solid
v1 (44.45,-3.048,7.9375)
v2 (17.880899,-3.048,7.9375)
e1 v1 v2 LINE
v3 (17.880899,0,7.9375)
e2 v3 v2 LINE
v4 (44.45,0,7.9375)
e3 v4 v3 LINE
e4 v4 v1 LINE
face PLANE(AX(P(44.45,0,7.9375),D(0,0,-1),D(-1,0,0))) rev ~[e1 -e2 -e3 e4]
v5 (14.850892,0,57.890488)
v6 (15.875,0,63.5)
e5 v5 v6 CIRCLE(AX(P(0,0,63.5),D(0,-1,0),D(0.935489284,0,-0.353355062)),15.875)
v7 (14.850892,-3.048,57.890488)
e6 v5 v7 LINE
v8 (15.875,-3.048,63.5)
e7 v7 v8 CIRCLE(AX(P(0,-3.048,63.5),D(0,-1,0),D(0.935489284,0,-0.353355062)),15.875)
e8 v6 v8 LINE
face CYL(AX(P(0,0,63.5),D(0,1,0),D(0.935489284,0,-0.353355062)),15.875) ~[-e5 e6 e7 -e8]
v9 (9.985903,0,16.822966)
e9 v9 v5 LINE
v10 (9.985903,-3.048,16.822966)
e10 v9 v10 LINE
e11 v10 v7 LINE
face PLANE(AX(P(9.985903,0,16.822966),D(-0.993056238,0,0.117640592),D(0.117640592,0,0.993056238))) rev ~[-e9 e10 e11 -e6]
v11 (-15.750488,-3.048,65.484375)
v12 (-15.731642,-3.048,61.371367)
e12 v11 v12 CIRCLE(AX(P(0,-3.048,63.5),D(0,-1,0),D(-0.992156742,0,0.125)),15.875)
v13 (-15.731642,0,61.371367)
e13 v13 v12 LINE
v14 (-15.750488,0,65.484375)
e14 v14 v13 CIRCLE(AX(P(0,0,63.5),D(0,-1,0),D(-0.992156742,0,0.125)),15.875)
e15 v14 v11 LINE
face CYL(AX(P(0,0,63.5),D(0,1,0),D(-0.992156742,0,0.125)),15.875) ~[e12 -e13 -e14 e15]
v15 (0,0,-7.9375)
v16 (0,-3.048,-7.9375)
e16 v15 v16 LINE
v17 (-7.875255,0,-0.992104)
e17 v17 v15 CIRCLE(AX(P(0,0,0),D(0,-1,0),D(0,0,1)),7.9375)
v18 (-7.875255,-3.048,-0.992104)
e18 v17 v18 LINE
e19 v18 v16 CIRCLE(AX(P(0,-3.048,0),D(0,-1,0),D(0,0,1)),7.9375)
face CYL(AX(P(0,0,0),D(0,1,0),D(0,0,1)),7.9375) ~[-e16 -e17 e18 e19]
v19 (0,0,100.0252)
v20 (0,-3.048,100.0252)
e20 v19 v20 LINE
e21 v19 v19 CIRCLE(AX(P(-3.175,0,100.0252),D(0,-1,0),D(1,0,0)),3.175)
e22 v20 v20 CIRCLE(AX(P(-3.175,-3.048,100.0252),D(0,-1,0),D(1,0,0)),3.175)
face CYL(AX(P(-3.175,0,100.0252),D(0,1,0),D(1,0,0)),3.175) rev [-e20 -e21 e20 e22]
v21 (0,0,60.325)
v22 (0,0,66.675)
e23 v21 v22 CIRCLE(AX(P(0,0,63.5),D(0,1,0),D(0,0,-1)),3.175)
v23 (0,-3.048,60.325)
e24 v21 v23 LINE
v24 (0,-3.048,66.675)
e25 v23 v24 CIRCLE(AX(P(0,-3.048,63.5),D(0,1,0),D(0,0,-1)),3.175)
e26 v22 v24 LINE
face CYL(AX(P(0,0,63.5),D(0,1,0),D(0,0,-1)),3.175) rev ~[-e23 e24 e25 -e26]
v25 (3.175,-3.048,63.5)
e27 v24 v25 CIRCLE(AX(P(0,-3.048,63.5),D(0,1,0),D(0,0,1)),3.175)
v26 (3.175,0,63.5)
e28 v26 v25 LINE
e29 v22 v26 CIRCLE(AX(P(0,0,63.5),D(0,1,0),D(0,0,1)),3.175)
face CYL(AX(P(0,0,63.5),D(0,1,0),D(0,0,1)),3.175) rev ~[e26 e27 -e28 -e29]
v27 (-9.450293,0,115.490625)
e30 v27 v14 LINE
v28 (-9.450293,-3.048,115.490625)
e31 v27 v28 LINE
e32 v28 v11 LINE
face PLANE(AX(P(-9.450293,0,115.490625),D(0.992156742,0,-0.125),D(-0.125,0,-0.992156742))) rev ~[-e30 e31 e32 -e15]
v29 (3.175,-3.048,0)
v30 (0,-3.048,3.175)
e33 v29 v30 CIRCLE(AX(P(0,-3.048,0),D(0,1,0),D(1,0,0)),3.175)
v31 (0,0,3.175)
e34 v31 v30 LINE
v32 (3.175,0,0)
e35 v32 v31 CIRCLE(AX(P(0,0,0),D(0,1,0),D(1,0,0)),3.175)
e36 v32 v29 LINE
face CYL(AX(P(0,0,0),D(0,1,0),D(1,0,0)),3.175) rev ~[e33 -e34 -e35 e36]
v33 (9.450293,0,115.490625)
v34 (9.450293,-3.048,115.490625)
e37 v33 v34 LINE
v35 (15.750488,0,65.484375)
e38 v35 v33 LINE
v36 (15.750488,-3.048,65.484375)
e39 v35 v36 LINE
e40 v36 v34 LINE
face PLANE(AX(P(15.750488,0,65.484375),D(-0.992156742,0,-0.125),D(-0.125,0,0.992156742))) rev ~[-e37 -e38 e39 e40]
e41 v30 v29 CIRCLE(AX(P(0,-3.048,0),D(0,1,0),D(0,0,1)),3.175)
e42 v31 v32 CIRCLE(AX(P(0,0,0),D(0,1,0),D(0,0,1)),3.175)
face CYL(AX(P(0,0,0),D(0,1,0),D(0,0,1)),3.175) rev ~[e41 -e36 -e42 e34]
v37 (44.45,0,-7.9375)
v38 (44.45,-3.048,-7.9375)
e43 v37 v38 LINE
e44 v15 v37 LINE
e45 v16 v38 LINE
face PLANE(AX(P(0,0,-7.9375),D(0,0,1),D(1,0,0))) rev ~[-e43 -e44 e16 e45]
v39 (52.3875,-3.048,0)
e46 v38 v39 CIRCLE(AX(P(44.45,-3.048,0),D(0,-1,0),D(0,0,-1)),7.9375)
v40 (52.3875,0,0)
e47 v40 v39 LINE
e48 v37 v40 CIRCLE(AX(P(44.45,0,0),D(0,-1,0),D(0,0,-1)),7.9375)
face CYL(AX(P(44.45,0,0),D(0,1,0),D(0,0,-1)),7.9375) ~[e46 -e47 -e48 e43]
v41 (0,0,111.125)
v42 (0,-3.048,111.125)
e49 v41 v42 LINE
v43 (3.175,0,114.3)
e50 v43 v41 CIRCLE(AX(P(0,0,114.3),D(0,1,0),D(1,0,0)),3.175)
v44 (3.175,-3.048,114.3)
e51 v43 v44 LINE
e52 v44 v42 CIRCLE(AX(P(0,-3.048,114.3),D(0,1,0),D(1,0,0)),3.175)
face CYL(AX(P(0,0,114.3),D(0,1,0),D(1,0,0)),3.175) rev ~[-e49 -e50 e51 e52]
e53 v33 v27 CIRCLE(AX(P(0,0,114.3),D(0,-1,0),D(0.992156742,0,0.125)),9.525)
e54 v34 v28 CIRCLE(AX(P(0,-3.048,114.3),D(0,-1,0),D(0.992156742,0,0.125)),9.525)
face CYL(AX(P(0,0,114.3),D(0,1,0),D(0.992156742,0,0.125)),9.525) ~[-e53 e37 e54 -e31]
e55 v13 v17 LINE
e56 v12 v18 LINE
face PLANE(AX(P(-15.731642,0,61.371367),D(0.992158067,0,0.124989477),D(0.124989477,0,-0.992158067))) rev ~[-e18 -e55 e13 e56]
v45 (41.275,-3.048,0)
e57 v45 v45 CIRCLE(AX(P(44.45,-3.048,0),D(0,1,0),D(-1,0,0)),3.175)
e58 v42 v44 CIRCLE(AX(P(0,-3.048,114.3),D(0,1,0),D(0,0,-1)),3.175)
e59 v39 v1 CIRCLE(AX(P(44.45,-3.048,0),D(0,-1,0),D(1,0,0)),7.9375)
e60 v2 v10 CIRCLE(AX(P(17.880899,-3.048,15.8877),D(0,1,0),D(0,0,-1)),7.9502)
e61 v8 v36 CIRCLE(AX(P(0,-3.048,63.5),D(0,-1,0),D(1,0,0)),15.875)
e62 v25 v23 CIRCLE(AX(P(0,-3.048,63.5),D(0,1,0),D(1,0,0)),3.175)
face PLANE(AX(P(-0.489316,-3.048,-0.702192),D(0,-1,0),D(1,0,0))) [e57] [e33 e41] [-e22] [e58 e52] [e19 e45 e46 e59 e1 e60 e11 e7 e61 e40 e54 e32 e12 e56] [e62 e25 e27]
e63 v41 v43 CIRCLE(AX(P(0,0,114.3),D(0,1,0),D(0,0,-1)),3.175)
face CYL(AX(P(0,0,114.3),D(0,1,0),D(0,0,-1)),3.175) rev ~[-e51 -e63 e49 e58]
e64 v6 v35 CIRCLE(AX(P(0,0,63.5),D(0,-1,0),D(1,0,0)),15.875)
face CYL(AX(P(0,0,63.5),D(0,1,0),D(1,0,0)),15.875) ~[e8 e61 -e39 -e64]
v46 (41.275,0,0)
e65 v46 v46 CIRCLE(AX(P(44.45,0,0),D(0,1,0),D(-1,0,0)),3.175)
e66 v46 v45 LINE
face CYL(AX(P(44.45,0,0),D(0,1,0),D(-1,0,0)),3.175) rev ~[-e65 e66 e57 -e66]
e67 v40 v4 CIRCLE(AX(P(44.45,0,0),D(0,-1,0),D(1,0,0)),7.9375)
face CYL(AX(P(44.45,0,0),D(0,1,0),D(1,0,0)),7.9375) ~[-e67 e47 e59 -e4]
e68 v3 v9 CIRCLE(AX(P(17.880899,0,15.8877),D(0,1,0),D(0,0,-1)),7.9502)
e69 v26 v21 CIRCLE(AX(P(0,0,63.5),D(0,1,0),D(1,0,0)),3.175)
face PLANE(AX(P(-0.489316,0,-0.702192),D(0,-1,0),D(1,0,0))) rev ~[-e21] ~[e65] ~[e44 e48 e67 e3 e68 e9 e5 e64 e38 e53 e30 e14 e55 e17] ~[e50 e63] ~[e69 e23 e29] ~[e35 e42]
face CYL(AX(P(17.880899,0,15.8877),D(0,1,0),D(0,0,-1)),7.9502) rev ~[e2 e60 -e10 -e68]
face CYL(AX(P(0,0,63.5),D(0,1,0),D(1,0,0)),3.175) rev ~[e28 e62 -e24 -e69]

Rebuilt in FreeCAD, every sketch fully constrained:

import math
import FreeCAD as App
import Part
import Sketcher

V = App.Vector
Q = App.Units.Quantity

doc = App.newDocument("Part")
body = doc.addObject("PartDesign::Body", "Body")

sketch1 = body.newObject("Sketcher::SketchObject", "Sketch")
sketch1.AttachmentSupport = (doc.getObject("XZ_Plane"), [""])
sketch1.MapMode = "FlatFace"
sketch1.addGeometry([
    Part.ArcOfCircle(Part.Circle(V(0, 63.5, 0), V(0, 0, 1), 15.875), math.radians(0), math.radians(7.180756)),
    Part.LineSegment(V(15.750488, 65.484375, 0), V(9.450293, 115.490625, 0)),
    Part.ArcOfCircle(Part.Circle(V(0, 114.3, 0), V(0, 0, 1), 9.525), math.radians(7.180756), math.radians(172.819244)),
    Part.LineSegment(V(-9.450293, 115.490625, 0), V(-15.750488, 65.484375, 0)),
    Part.ArcOfCircle(Part.Circle(V(0, 63.5, 0), V(0, 0, 1), 15.875), math.radians(172.819244), math.radians(187.705837)),
    Part.LineSegment(V(-15.731642, 61.371367, 0), V(-7.875255, -0.992104, 0)),
    Part.ArcOfCircle(Part.Circle(V(0, 0, 0), V(0, 0, 1), 7.9375), math.radians(-172.819852), math.radians(-90)),
    Part.LineSegment(V(0, -7.9375, 0), V(44.45, -7.9375, 0)),
    Part.ArcOfCircle(Part.Circle(V(44.45, 0, 0), V(0, 0, 1), 7.9375), math.radians(-90), math.radians(0)),
    Part.ArcOfCircle(Part.Circle(V(44.45, 0, 0), V(0, 0, 1), 7.9375), math.radians(0), math.radians(90)),
    Part.LineSegment(V(44.45, 7.9375, 0), V(17.880899, 7.9375, 0)),
    Part.ArcOfCircle(Part.Circle(V(17.880899, 15.8877, 0), V(0, 0, 1), 7.9502), math.radians(173.244046), math.radians(270)),
    Part.LineSegment(V(9.985903, 16.822966, 0), V(14.850892, 57.890488, 0)),
    Part.ArcOfCircle(Part.Circle(V(0, 63.5, 0), V(0, 0, 1), 15.875), math.radians(-20.692664), math.radians(0)),
    Part.ArcOfCircle(Part.Circle(V(0, 0, 0), V(0, 0, 1), 3.175), math.radians(90), math.radians(360)),
    Part.ArcOfCircle(Part.Circle(V(0, 0, 0), V(0, 0, 1), 3.175), math.radians(0), math.radians(90)),
    Part.Circle(V(44.45, 0, 0), V(0, 0, 1), 3.175),
    Part.ArcOfCircle(Part.Circle(V(0, 63.5, 0), V(0, 0, 1), 3.175), math.radians(90), math.radians(270)),
    Part.ArcOfCircle(Part.Circle(V(0, 63.5, 0), V(0, 0, 1), 3.175), math.radians(0), math.radians(90)),
    Part.ArcOfCircle(Part.Circle(V(0, 63.5, 0), V(0, 0, 1), 3.175), math.radians(-90), math.radians(0)),
    Part.Circle(V(-3.175, 100.0252, 0), V(0, 0, 1), 3.175),
    Part.ArcOfCircle(Part.Circle(V(0, 114.3, 0), V(0, 0, 1), 3.175), math.radians(0), math.radians(270)),
    Part.ArcOfCircle(Part.Circle(V(0, 114.3, 0), V(0, 0, 1), 3.175), math.radians(-90), math.radians(0)),
], False)
sketch1.addConstraint([
    Sketcher.Constraint("Tangent", 0, 2, 1, 1),
    Sketcher.Constraint("Tangent", 1, 2, 2, 1),
    Sketcher.Constraint("Tangent", 2, 2, 3, 1),
    Sketcher.Constraint("Tangent", 3, 2, 4, 1),
    Sketcher.Constraint("Coincident", 4, 2, 5, 1),
    Sketcher.Constraint("Tangent", 5, 2, 6, 1),
    Sketcher.Constraint("Tangent", 6, 2, 7, 1),
    Sketcher.Constraint("Tangent", 7, 2, 8, 1),
    Sketcher.Constraint("Tangent", 8, 2, 9, 1),
    Sketcher.Constraint("Tangent", 9, 2, 10, 1),
    Sketcher.Constraint("Tangent", 10, 2, 11, 2),
    Sketcher.Constraint("Tangent", 11, 1, 12, 1),
    Sketcher.Constraint("Coincident", 12, 2, 13, 1),
    Sketcher.Constraint("Tangent", 13, 2, 0, 1),
    Sketcher.Constraint("Tangent", 14, 1, 15, 2),
    Sketcher.Constraint("Coincident", 15, 1, 14, 2),
    Sketcher.Constraint("Tangent", 17, 1, 18, 2),
    Sketcher.Constraint("Tangent", 18, 1, 19, 2),
    Sketcher.Constraint("Tangent", 19, 1, 17, 2),
    Sketcher.Constraint("Tangent", 21, 1, 22, 2),
    Sketcher.Constraint("Coincident", 22, 1, 21, 2),
    Sketcher.Constraint("Horizontal", 7),
    Sketcher.Constraint("Horizontal", 10),
    Sketcher.Constraint("Coincident", 6, 3, -1, 1),
    Sketcher.Constraint("Coincident", 14, 3, -1, 1),
    Sketcher.Constraint("Coincident", 4, 3, 0, 3),
    Sketcher.Constraint("Coincident", 16, 3, 8, 3),
    Sketcher.Constraint("Coincident", 17, 3, 0, 3),
    Sketcher.Constraint("Coincident", 21, 3, 2, 3),
    Sketcher.Constraint("Equal", 0, 4),
    Sketcher.Constraint("Equal", 6, 8),
    Sketcher.Constraint("Equal", 8, 9),
    Sketcher.Constraint("Equal", 4, 13),
    Sketcher.Constraint("Equal", 15, 16),
    Sketcher.Constraint("Equal", 16, 17),
    Sketcher.Constraint("Equal", 19, 20),
    Sketcher.Constraint("Equal", 20, 21),
    Sketcher.Constraint("Symmetric", 1, 2, 2, 2, -2),
    Sketcher.Constraint("PointOnObject", 8, 2, -1),
    Sketcher.Constraint("PointOnObject", 14, 1, -2),
    Sketcher.Constraint("PointOnObject", 15, 1, -1),
    Sketcher.Constraint("PointOnObject", 17, 1, -2),
    Sketcher.Constraint("PointOnObject", 19, 1, -2),
    Sketcher.Constraint("PointOnObject", 22, 1, -2),
    Sketcher.Constraint("Horizontal", 19, 3, 13, 2),
    Sketcher.Constraint("Horizontal", 13, 2, 18, 1),
    Sketcher.Constraint("Horizontal", 22, 3, 21, 1),
    Sketcher.Constraint("Diameter", 16, Q("0.25 in")),
    Sketcher.Constraint("Radius", 0, Q("0.625 in")),
    Sketcher.Constraint("Radius", 2, Q("0.375 in")),
    Sketcher.Constraint("Radius", 6, Q("0.3125 in")),
    Sketcher.Constraint("Radius", 11, Q("0.313 in")),
    Sketcher.Constraint("DistanceY", 0, 3, 2, 3, Q("2 in")),
    Sketcher.Constraint("DistanceX", 7, 1, 7, 2, Q("1.75 in")),
    Sketcher.Constraint("DistanceY", -1, 1, 0, 3, Q("2.5 in")),
    Sketcher.Constraint("DistanceX", 20, 3, -1, 1, Q("0.125 in")),
    Sketcher.Constraint("DistanceY", -1, 1, 20, 3, Q("3.938 in")),
    Sketcher.Constraint("DistanceX", 10, 2, 10, 1, 26.569101),
    Sketcher.Constraint("Distance", 12, 41.354679),
    Sketcher.Constraint("DistanceX", 4, 2, -1, 1, 15.731642),
])
pad1 = body.newObject("PartDesign::Pad", "Pad")
pad1.Profile = sketch1
pad1.Length = Q("0.12 in")

doc.recompute()
